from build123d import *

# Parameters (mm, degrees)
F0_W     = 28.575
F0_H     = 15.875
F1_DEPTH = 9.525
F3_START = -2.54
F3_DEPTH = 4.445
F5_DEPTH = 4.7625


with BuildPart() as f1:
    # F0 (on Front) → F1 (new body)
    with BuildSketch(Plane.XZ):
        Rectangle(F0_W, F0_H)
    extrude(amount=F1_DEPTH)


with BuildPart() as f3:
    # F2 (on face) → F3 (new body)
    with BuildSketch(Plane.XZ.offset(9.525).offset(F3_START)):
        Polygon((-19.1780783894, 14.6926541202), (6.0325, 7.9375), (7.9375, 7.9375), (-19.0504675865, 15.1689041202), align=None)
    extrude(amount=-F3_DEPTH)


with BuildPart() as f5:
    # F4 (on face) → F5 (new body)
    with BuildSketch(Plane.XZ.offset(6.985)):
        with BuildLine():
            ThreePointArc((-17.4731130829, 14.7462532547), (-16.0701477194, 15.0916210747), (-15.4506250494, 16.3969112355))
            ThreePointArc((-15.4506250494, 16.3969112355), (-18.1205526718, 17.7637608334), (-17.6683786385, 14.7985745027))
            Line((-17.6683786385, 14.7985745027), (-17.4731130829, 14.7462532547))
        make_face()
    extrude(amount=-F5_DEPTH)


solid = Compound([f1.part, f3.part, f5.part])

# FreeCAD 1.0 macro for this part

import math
import FreeCAD as App
import Part
import Sketcher
from FreeCAD import Vector
Q = App.Units.Quantity


def add_polygon(sketch, points):
    """Adds a closed chain of lines whose ends are joined by coincident constraints."""
    first, n = sketch.GeometryCount, len(points)
    for a, b in zip(points, points[1:] + points[:1]):
        sketch.addGeometry(Part.LineSegment(App.Vector(*a, 0), App.Vector(*b, 0)), False)
    for i in range(n):
        sketch.addConstraint(Sketcher.Constraint("Coincident", first + i, 2, first + (i + 1) % n, 1))

doc = App.newDocument("Part")
body = doc.addObject("PartDesign::Body", "Body")

sketch1 = body.newObject("Sketcher::SketchObject", "Sketch")
sketch1.AttachmentSupport = (doc.getObject("XZ_Plane"), [""])
sketch1.MapMode = "FlatFace"
add_polygon(sketch1, [(-14, 8), (-14, -8), (14, -8), (14, 8)])
sketch1.addConstraint([
    Sketcher.Constraint("Vertical", 0),
    Sketcher.Constraint("Horizontal", 1),
    Sketcher.Constraint("Vertical", 2),
    Sketcher.Constraint("Horizontal", 3),
    Sketcher.Constraint("Symmetric", 0, 2, 2, 2, -1, 1),
    Sketcher.Constraint("DistanceX", 1, 1, 1, 2, Q("1.125 in")),
    Sketcher.Constraint("DistanceY", 0, 2, 0, 1, Q("0.625 in")),
])
pad1 = body.newObject("PartDesign::Pad", "Pad")
pad1.Profile = sketch1
pad1.Length = Q("0.375 in")
body2 = doc.addObject("PartDesign::Body", "Body001")

sketch2 = body2.newObject("Sketcher::SketchObject", "Sketch001")
sketch2.AttachmentSupport = (doc.getObject("XZ_Plane001"), [""])
sketch2.MapMode = "FlatFace"
sketch2.AttachmentOffset = App.Placement(Vector(0, 0, 0.275 * 25.4), App.Rotation())
add_polygon(sketch2, [(-19.18, 14.69), (6.03, 7.94), (7.94, 7.94), (-19.05, 15.17)])
sketch2.addConstraint([
    Sketcher.Constraint("Horizontal", 1),
    Sketcher.Constraint("Parallel", 0, 2),
    Sketcher.Constraint("Perpendicular", 2, 3),
    Sketcher.Constraint("Angle", 0, Q("-15 deg")),
    Sketcher.Constraint("Distance", 2, Q("1.1 in")),
    Sketcher.Constraint("DistanceX", 1, 1, 1, 2, Q("0.075 in")),
    Sketcher.Constraint("DistanceY", -1, 1, 0, 2, Q("0.3125 in")),
    Sketcher.Constraint("DistanceX", -1, 1, 1, 2, Q("0.3125 in")),
])
pad2 = body2.newObject("PartDesign::Pad", "Pad001")
pad2.Profile = sketch2
pad2.Length = Q("0.175 in")
pad2.Reversed = True
body3 = doc.addObject("PartDesign::Body", "Body002")

sketch3 = body3.newObject("Sketcher::SketchObject", "Sketch002")
sketch3.AttachmentSupport = (doc.getObject("XZ_Plane002"), [""])
sketch3.MapMode = "FlatFace"
sketch3.AttachmentOffset = App.Placement(Vector(0, 0, 0.275 * 25.4), App.Rotation())
sketch3.addGeometry([
    Part.ArcOfCircle(Part.Circle(Vector(-17.14, 16.4, 0), Vector(0, 0, 1), 1.68), math.radians(-102), math.radians(0)),
    Part.ArcOfCircle(Part.Circle(Vector(-17.14, 16.4, 0), Vector(0, 0, 1), 1.68), math.radians(0), math.radians(252)),
    Part.LineSegment(Vector(-17.67, 14.8, 0), Vector(-17.47, 14.75, 0)),
], False)
sketch3.addConstraint([
    Sketcher.Constraint("Tangent", 0, 2, 1, 1),
    Sketcher.Constraint("Coincident", 1, 2, 2, 1),
    Sketcher.Constraint("Coincident", 2, 2, 0, 1),
    Sketcher.Constraint("Equal", 0, 1),
    Sketcher.Constraint("Horizontal", 1, 3, 0, 2),
    Sketcher.Constraint("Angle", 2, Q("-15 deg")),
    Sketcher.Constraint("Radius", 0, Q("1.684838 mm")),
    Sketcher.Constraint("DistanceY", -1, 1, 0, 3, Q("16.396911 mm")),
    Sketcher.Constraint("DistanceX", 1, 2, -1, 1, Q("17.668379 mm")),
    Sketcher.Constraint("DistanceY", 2, 2, 1, 2, Q("0.052321 mm")),
])
pad3 = body3.newObject("PartDesign::Pad", "Pad002")
pad3.Profile = sketch3
pad3.Length = Q("0.1875 in")
pad3.Reversed = True

doc.recompute()
